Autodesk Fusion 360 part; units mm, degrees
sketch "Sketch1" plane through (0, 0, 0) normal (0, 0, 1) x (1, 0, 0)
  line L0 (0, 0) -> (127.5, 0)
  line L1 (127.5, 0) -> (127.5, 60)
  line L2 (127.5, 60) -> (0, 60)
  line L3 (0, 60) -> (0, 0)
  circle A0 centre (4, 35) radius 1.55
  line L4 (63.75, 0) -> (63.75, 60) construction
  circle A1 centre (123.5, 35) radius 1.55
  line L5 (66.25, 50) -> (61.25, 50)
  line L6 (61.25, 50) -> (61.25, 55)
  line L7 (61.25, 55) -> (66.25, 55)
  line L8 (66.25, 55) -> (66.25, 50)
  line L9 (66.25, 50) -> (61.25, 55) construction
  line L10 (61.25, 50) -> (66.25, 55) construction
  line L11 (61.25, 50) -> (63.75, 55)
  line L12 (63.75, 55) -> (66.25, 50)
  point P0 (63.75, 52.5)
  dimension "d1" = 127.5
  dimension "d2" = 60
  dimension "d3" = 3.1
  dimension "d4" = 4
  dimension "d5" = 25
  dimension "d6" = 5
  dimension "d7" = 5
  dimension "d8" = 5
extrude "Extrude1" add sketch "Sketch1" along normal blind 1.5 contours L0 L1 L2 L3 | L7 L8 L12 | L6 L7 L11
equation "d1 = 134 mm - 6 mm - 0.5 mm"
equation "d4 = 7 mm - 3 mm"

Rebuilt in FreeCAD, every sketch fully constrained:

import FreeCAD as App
import Part
import Sketcher

doc = App.newDocument("Part")
body = doc.addObject("PartDesign::Body", "Body")

sketch1 = body.newObject("Sketcher::SketchObject", "Sketch")
sketch1.AttachmentSupport = (doc.getObject("XY_Plane"), [""])
sketch1.MapMode = "FlatFace"
sketch1.addGeometry([
    Part.LineSegment(App.Vector(0, 60, 0), App.Vector(0, 0, 0)),
    Part.LineSegment(App.Vector(0, 0, 0), App.Vector(127.5, 0, 0)),
    Part.LineSegment(App.Vector(127.5, 0, 0), App.Vector(127.5, 60, 0)),
    Part.LineSegment(App.Vector(127.5, 60, 0), App.Vector(0, 60, 0)),
    Part.Circle(App.Vector(4, 35, 0), App.Vector(0, 0, 1), 1.6),
    Part.Circle(App.Vector(123.5, 35, 0), App.Vector(0, 0, 1), 1.6),
    Part.LineSegment(App.Vector(66.2, 50, 0), App.Vector(61.2, 50, 0)),
    Part.LineSegment(App.Vector(61.2, 50, 0), App.Vector(63.8, 55, 0)),
    Part.LineSegment(App.Vector(63.8, 55, 0), App.Vector(66.2, 50, 0)),
], False)
sketch1.addConstraint([
    Sketcher.Constraint("Coincident", 0, 2, 1, 1),
    Sketcher.Constraint("Coincident", 1, 2, 2, 1),
    Sketcher.Constraint("Coincident", 2, 2, 3, 1),
    Sketcher.Constraint("Coincident", 3, 2, 0, 1),
    Sketcher.Constraint("Coincident", 6, 2, 7, 1),
    Sketcher.Constraint("Coincident", 7, 2, 8, 1),
    Sketcher.Constraint("Coincident", 8, 2, 6, 1),
    Sketcher.Constraint("Vertical", 0),
    Sketcher.Constraint("Horizontal", 1),
    Sketcher.Constraint("Vertical", 2),
    Sketcher.Constraint("Horizontal", 3),
    Sketcher.Constraint("Horizontal", 6),
    Sketcher.Constraint("Coincident", 0, 2, -1, 1),
    Sketcher.Constraint("Equal", 4, 5),
    Sketcher.Constraint("Horizontal", 4, 3, 5, 3),
    Sketcher.Constraint("Equal", 7, 8),
    Sketcher.Constraint("Diameter", 4, 3.1),
    Sketcher.Constraint("DistanceX", 6, 2, 6, 1, 5.0),
    Sketcher.Constraint("DistanceY", 0, 2, 0, 1, 60.0),
    Sketcher.Constraint("DistanceX", 1, 1, 1, 2, 127.5),
    Sketcher.Constraint("DistanceX", -1, 1, 4, 3, 4.0),
    Sketcher.Constraint("DistanceX", 5, 3, 1, 2, 4.0),
    Sketcher.Constraint("DistanceY", 5, 3, 2, 2, 25.0),
    Sketcher.Constraint("DistanceY", 6, 2, 7, 2, 5.0),
    Sketcher.Constraint("DistanceY", 7, 2, 2, 2, 5.0),
    Sketcher.Constraint("DistanceX", -1, 1, 6, 2, 61.25),
])
pad1 = body.newObject("PartDesign::Pad", "Pad")
pad1.Profile = sketch1
pad1.Length = 1.5

doc.recompute()
